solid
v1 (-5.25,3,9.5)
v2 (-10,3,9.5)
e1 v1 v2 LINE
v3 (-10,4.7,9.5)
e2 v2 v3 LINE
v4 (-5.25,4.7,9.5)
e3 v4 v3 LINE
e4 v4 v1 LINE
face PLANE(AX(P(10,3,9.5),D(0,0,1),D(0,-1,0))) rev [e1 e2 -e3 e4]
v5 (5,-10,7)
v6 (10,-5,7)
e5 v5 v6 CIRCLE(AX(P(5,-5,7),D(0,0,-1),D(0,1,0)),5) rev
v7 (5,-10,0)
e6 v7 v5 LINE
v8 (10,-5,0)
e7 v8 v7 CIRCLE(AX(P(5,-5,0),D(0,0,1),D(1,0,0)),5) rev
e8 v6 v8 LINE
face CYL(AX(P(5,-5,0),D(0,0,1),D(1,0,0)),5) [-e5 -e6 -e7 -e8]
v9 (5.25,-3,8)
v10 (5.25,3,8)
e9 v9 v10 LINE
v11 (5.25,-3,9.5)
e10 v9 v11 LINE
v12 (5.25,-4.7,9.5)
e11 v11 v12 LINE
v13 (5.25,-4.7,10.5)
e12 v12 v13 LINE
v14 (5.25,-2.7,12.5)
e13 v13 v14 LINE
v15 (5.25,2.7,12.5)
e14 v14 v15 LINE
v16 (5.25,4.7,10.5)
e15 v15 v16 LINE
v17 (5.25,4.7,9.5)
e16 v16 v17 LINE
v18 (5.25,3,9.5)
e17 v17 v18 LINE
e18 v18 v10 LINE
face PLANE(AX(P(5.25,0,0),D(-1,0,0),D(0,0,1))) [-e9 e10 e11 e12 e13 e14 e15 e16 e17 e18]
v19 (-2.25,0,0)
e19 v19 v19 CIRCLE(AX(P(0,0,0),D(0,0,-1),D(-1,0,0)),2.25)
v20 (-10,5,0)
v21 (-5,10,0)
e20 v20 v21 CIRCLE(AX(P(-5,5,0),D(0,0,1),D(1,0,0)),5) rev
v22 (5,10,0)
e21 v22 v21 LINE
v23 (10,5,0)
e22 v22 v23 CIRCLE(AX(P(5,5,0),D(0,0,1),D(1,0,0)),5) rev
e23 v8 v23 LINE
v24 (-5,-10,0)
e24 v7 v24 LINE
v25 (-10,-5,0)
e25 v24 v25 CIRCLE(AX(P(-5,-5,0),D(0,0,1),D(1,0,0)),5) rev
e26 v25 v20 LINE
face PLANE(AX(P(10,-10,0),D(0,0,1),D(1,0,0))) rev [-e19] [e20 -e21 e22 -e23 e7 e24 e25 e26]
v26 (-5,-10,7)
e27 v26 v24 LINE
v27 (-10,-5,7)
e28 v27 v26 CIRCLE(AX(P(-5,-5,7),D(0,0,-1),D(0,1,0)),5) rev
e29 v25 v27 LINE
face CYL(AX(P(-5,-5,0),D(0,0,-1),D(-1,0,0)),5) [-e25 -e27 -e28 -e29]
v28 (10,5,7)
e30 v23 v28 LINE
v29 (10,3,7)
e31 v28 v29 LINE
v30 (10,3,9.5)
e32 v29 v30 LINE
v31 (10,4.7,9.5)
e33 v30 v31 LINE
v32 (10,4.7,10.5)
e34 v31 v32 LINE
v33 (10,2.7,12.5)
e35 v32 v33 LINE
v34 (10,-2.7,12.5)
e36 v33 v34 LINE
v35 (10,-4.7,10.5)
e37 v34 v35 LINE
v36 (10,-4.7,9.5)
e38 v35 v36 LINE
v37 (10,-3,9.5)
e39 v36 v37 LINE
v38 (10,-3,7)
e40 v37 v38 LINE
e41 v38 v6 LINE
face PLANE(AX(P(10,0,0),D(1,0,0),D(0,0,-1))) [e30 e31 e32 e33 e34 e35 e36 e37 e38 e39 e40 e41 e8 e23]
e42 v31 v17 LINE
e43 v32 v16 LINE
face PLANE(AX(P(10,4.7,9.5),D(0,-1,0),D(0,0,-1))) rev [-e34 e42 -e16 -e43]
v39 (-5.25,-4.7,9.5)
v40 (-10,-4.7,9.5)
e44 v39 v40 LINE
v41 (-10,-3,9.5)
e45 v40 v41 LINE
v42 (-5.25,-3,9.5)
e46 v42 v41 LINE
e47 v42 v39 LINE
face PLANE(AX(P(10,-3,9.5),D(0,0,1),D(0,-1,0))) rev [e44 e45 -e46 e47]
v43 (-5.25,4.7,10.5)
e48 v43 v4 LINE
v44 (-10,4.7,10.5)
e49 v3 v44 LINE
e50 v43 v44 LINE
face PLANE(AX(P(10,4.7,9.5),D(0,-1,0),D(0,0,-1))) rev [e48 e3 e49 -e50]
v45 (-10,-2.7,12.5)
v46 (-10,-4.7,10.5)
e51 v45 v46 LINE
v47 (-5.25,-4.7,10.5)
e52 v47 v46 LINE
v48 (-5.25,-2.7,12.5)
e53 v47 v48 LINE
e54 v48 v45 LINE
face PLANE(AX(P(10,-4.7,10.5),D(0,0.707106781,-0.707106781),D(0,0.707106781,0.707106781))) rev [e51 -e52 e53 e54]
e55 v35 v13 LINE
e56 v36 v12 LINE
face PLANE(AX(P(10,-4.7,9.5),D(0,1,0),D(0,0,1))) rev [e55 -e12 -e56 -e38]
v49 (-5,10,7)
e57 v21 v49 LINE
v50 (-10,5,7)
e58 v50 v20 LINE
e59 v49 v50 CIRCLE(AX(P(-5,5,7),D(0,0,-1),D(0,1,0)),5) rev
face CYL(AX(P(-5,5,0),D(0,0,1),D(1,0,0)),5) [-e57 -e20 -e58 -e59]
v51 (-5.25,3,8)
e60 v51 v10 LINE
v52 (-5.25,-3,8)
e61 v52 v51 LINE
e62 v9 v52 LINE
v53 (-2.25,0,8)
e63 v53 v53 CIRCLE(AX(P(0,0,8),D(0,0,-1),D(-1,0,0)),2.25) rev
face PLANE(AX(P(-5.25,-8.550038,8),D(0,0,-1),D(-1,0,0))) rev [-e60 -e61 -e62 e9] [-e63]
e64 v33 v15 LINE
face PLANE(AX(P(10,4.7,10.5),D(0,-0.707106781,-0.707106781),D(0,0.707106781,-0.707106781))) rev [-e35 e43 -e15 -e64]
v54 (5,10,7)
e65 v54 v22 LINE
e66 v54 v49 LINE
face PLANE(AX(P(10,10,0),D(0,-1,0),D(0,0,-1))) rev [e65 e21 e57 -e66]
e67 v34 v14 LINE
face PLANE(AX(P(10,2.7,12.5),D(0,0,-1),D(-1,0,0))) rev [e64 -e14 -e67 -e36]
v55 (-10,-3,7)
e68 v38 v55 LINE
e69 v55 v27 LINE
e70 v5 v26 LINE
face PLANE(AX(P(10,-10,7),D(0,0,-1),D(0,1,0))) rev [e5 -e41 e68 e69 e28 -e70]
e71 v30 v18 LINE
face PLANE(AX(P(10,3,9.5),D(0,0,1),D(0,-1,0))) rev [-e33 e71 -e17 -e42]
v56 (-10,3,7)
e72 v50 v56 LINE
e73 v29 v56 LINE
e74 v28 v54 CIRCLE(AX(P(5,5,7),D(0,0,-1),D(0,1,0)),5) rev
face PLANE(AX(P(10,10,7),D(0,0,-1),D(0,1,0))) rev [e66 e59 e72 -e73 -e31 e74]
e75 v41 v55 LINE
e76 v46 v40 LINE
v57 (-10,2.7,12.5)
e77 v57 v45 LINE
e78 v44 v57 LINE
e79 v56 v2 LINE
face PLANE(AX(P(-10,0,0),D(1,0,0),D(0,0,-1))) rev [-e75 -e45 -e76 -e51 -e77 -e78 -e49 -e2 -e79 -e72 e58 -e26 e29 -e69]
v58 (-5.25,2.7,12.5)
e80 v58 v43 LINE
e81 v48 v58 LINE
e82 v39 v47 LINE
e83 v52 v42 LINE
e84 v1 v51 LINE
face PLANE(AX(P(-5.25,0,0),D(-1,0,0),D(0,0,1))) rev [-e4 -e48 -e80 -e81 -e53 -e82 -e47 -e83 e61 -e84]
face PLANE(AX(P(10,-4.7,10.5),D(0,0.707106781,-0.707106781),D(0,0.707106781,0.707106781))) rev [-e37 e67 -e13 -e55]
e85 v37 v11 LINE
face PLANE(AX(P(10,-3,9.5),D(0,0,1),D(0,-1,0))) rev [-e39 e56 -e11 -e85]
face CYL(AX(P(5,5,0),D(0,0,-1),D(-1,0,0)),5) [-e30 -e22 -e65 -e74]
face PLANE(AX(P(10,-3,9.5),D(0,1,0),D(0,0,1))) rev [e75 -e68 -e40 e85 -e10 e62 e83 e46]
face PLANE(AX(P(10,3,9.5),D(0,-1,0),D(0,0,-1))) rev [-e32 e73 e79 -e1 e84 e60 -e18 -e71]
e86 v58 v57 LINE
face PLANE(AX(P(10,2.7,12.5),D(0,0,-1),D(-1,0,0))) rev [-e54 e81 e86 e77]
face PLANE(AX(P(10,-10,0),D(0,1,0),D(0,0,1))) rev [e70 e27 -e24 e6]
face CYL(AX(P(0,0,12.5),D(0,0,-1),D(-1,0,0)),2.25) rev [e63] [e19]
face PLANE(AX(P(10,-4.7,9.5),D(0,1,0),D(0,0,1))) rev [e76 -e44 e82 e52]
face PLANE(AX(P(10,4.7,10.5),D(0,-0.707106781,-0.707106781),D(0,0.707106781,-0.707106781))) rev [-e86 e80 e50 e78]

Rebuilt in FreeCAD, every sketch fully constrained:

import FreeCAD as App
import Part
import Sketcher

V = App.Vector


def edges_at(feature, points):
    """Names of the edges that pass closest to the given points."""
    edges = feature.Shape.Edges
    near = lambda p: min(range(len(edges)), key=lambda i: edges[i].distToShape(Part.Vertex(*p))[0])
    return sorted({f"Edge{near(p) + 1}" for p in points})

doc = App.newDocument("Part")
params = doc.addObject("Spreadsheet::Sheet", "Params")
for row, (alias, value) in enumerate([
    ("sketch1_width", "7 mm"),
    ("sketch1_width2", "20 mm"),
    ("sketch1_height", "1 mm"),
    ("sketch1_width3", "1.7 mm"),
    ("sketch1_width4", "5.4 mm"),
    ("pad1_length", "20 mm"),
    ("sketch2_diameter", "4.5 mm"),
    ("sketch3_height", "9 mm"),
    ("pocket2_length", "10.5 mm"),
    ("fillet_radius", "5 mm"),
], start=1):
    params.set(f"A{row}", alias)
    params.set(f"B{row}", "=" + value)
    params.setAlias(f"B{row}", alias)

body = doc.addObject("PartDesign::Body", "Body")

sketch1 = body.newObject("Sketcher::SketchObject", "Sketch")
sketch1.AttachmentSupport = (doc.getObject("YZ_Plane"), [""])
sketch1.MapMode = "FlatFace"
sketch1.addGeometry(Part.LineSegment(V(3, 9.5, 0), V(4.7, 9.5, 0)), False)
sketch1.addGeometry(Part.LineSegment(V(4.7, 9.5, 0), V(4.7, 10.5, 0)), False)
sketch1.addGeometry(Part.LineSegment(V(4.7, 10.5, 0), V(2.7, 12.5, 0)), False)
sketch1.addGeometry(Part.LineSegment(V(2.7, 12.5, 0), V(-2.7, 12.5, 0)), False)
sketch1.addGeometry(Part.LineSegment(V(-2.7, 12.5, 0), V(-4.7, 10.5, 0)), False)
sketch1.addGeometry(Part.LineSegment(V(-4.7, 10.5, 0), V(-4.7, 9.5, 0)), False)
sketch1.addGeometry(Part.LineSegment(V(-4.7, 9.5, 0), V(-3, 9.5, 0)), False)
sketch1.addGeometry(Part.LineSegment(V(-3, 9.5, 0), V(-3, 7, 0)), False)
sketch1.addGeometry(Part.LineSegment(V(-3, 7, 0), V(-10, 7, 0)), False)
sketch1.addGeometry(Part.LineSegment(V(-10, 7, 0), V(-10, 0, 0)), False)
sketch1.addGeometry(Part.LineSegment(V(-10, 0, 0), V(10, 0, 0)), False)
sketch1.addGeometry(Part.LineSegment(V(10, 0, 0), V(10, 7, 0)), False)
sketch1.addGeometry(Part.LineSegment(V(10, 7, 0), V(3, 7, 0)), False)
sketch1.addGeometry(Part.LineSegment(V(3, 7, 0), V(3, 9.5, 0)), False)
sketch1.addConstraint(Sketcher.Constraint("Coincident", 0, 2, 1, 1))
sketch1.addConstraint(Sketcher.Constraint("Coincident", 1, 2, 2, 1))
sketch1.addConstraint(Sketcher.Constraint("Coincident", 2, 2, 3, 1))
sketch1.addConstraint(Sketcher.Constraint("Coincident", 3, 2, 4, 1))
sketch1.addConstraint(Sketcher.Constraint("Coincident", 4, 2, 5, 1))
sketch1.addConstraint(Sketcher.Constraint("Coincident", 5, 2, 6, 1))
sketch1.addConstraint(Sketcher.Constraint("Coincident", 6, 2, 7, 1))
sketch1.addConstraint(Sketcher.Constraint("Coincident", 7, 2, 8, 1))
sketch1.addConstraint(Sketcher.Constraint("Coincident", 8, 2, 9, 1))
sketch1.addConstraint(Sketcher.Constraint("Coincident", 9, 2, 10, 1))
sketch1.addConstraint(Sketcher.Constraint("Coincident", 10, 2, 11, 1))
sketch1.addConstraint(Sketcher.Constraint("Coincident", 11, 2, 12, 1))
sketch1.addConstraint(Sketcher.Constraint("Coincident", 12, 2, 13, 1))
sketch1.addConstraint(Sketcher.Constraint("Coincident", 13, 2, 0, 1))
sketch1.addConstraint(Sketcher.Constraint("Horizontal", 0))
sketch1.addConstraint(Sketcher.Constraint("Vertical", 1))
sketch1.addConstraint(Sketcher.Constraint("Horizontal", 3))
sketch1.addConstraint(Sketcher.Constraint("Vertical", 5))
sketch1.addConstraint(Sketcher.Constraint("Horizontal", 6))
sketch1.addConstraint(Sketcher.Constraint("Vertical", 7))
sketch1.addConstraint(Sketcher.Constraint("Horizontal", 8))
sketch1.addConstraint(Sketcher.Constraint("Vertical", 9))
sketch1.addConstraint(Sketcher.Constraint("Horizontal", 10))
sketch1.addConstraint(Sketcher.Constraint("Vertical", 11))
sketch1.addConstraint(Sketcher.Constraint("Horizontal", 12))
sketch1.addConstraint(Sketcher.Constraint("Vertical", 13))
sketch1.addConstraint(Sketcher.Constraint("Symmetric", 9, 2, 10, 2, -1, 1))
sketch1.addConstraint(Sketcher.Constraint("Symmetric", 1, 2, 4, 2, -2))
sketch1.addConstraint(Sketcher.Constraint("Symmetric", 7, 2, 12, 2, -2))
sketch1.addConstraint(Sketcher.Constraint("Perpendicular", 2, 4))
sketch1.addConstraint(Sketcher.Constraint("Horizontal", 0, 2, 5, 2))
sketch1.addConstraint(Sketcher.Constraint("Equal", 12, 9))
sketch1.addConstraint(Sketcher.Constraint("Equal", 2, 4))
sketch1.addConstraint(Sketcher.Constraint("DistanceX", 8, 2, 8, 1, 7.0))
sketch1.addConstraint(Sketcher.Constraint("DistanceX", 10, 1, 10, 2, 20.0))
sketch1.addConstraint(Sketcher.Constraint("DistanceY", 1, 1, 1, 2, 1.0))
sketch1.addConstraint(Sketcher.Constraint("DistanceX", 0, 1, 0, 2, 1.7))
sketch1.addConstraint(Sketcher.Constraint("DistanceX", 3, 2, 3, 1, 5.4))
sketch1.addConstraint(Sketcher.Constraint("DistanceY", 7, 2, 7, 1, 2.5))
sketch1.setExpression("Constraints[33]", "Params.sketch1_width")
sketch1.setExpression("Constraints[34]", "Params.sketch1_width2")
sketch1.setExpression("Constraints[35]", "Params.sketch1_height")
sketch1.setExpression("Constraints[36]", "Params.sketch1_width3")
sketch1.setExpression("Constraints[37]", "Params.sketch1_width4")
pad1 = body.newObject("PartDesign::Pad", "Pad")
pad1.Profile = sketch1
pad1.setExpression("Length", "Params.pad1_length")
pad1.Midplane = True

sketch2 = body.newObject("Sketcher::SketchObject", "Sketch001")
sketch2.AttachmentSupport = (doc.getObject("XY_Plane"), [""])
sketch2.MapMode = "FlatFace"
sketch2.addGeometry(Part.Circle(V(0, 0, 0), V(0, 0, 1), 2.25), False)
sketch2.addConstraint(Sketcher.Constraint("Coincident", 0, 3, -1, 1))
sketch2.addConstraint(Sketcher.Constraint("Diameter", 0, 4.5))
sketch2.setExpression("Constraints[1]", "Params.sketch2_diameter")
pocket1 = body.newObject("PartDesign::Pocket", "Pocket")
pocket1.Profile = sketch2
pocket1.Type = "ThroughAll"
pocket1.Reversed = True

sketch3 = body.newObject("Sketcher::SketchObject", "Sketch002")
sketch3.AttachmentSupport = (doc.getObject("YZ_Plane"), [""])
sketch3.MapMode = "FlatFace"
sketch3.addGeometry(Part.LineSegment(V(8.550038, 17, 0), V(-8.550038, 17, 0)), False)
sketch3.addGeometry(Part.LineSegment(V(-8.550038, 17, 0), V(-8.550038, 8, 0)), False)
sketch3.addGeometry(Part.LineSegment(V(-8.550038, 8, 0), V(8.550038, 8, 0)), False)
sketch3.addGeometry(Part.LineSegment(V(8.550038, 8, 0), V(8.550038, 17, 0)), False)
sketch3.addConstraint(Sketcher.Constraint("Coincident", 0, 2, 1, 1))
sketch3.addConstraint(Sketcher.Constraint("Coincident", 1, 2, 2, 1))
sketch3.addConstraint(Sketcher.Constraint("Coincident", 2, 2, 3, 1))
sketch3.addConstraint(Sketcher.Constraint("Coincident", 3, 2, 0, 1))
sketch3.addConstraint(Sketcher.Constraint("Horizontal", 0))
sketch3.addConstraint(Sketcher.Constraint("Vertical", 1))
sketch3.addConstraint(Sketcher.Constraint("Horizontal", 2))
sketch3.addConstraint(Sketcher.Constraint("Vertical", 3))
sketch3.addConstraint(Sketcher.Constraint("DistanceY", 1, 2, 1, 1, 9.0))
sketch3.addConstraint(Sketcher.Constraint("DistanceY", -1, 1, 0, 2, 17.0))
sketch3.addConstraint(Sketcher.Constraint("DistanceX", 0, 2, 0, 1, 17.100076))
sketch3.addConstraint(Sketcher.Constraint("DistanceX", 0, 2, -1, 1, 8.550038))
sketch3.setExpression("Constraints[8]", "Params.sketch3_height")
pocket2 = body.newObject("PartDesign::Pocket", "Pocket001")
pocket2.Profile = sketch3
pocket2.setExpression("Length", "Params.pocket2_length")
pocket2.Midplane = True
doc.recompute()

fillet = body.newObject("PartDesign::Fillet", "Fillet")
fillet.Base = (pocket2, edges_at(pocket2, [
    (10, -10, 3.5),
    (-10, 10, 3.5),
    (-10, -10, 3.5),
    (10, 10, 3.5),
]))
fillet.setExpression("Radius", "Params.fillet_radius")

doc.recompute()
